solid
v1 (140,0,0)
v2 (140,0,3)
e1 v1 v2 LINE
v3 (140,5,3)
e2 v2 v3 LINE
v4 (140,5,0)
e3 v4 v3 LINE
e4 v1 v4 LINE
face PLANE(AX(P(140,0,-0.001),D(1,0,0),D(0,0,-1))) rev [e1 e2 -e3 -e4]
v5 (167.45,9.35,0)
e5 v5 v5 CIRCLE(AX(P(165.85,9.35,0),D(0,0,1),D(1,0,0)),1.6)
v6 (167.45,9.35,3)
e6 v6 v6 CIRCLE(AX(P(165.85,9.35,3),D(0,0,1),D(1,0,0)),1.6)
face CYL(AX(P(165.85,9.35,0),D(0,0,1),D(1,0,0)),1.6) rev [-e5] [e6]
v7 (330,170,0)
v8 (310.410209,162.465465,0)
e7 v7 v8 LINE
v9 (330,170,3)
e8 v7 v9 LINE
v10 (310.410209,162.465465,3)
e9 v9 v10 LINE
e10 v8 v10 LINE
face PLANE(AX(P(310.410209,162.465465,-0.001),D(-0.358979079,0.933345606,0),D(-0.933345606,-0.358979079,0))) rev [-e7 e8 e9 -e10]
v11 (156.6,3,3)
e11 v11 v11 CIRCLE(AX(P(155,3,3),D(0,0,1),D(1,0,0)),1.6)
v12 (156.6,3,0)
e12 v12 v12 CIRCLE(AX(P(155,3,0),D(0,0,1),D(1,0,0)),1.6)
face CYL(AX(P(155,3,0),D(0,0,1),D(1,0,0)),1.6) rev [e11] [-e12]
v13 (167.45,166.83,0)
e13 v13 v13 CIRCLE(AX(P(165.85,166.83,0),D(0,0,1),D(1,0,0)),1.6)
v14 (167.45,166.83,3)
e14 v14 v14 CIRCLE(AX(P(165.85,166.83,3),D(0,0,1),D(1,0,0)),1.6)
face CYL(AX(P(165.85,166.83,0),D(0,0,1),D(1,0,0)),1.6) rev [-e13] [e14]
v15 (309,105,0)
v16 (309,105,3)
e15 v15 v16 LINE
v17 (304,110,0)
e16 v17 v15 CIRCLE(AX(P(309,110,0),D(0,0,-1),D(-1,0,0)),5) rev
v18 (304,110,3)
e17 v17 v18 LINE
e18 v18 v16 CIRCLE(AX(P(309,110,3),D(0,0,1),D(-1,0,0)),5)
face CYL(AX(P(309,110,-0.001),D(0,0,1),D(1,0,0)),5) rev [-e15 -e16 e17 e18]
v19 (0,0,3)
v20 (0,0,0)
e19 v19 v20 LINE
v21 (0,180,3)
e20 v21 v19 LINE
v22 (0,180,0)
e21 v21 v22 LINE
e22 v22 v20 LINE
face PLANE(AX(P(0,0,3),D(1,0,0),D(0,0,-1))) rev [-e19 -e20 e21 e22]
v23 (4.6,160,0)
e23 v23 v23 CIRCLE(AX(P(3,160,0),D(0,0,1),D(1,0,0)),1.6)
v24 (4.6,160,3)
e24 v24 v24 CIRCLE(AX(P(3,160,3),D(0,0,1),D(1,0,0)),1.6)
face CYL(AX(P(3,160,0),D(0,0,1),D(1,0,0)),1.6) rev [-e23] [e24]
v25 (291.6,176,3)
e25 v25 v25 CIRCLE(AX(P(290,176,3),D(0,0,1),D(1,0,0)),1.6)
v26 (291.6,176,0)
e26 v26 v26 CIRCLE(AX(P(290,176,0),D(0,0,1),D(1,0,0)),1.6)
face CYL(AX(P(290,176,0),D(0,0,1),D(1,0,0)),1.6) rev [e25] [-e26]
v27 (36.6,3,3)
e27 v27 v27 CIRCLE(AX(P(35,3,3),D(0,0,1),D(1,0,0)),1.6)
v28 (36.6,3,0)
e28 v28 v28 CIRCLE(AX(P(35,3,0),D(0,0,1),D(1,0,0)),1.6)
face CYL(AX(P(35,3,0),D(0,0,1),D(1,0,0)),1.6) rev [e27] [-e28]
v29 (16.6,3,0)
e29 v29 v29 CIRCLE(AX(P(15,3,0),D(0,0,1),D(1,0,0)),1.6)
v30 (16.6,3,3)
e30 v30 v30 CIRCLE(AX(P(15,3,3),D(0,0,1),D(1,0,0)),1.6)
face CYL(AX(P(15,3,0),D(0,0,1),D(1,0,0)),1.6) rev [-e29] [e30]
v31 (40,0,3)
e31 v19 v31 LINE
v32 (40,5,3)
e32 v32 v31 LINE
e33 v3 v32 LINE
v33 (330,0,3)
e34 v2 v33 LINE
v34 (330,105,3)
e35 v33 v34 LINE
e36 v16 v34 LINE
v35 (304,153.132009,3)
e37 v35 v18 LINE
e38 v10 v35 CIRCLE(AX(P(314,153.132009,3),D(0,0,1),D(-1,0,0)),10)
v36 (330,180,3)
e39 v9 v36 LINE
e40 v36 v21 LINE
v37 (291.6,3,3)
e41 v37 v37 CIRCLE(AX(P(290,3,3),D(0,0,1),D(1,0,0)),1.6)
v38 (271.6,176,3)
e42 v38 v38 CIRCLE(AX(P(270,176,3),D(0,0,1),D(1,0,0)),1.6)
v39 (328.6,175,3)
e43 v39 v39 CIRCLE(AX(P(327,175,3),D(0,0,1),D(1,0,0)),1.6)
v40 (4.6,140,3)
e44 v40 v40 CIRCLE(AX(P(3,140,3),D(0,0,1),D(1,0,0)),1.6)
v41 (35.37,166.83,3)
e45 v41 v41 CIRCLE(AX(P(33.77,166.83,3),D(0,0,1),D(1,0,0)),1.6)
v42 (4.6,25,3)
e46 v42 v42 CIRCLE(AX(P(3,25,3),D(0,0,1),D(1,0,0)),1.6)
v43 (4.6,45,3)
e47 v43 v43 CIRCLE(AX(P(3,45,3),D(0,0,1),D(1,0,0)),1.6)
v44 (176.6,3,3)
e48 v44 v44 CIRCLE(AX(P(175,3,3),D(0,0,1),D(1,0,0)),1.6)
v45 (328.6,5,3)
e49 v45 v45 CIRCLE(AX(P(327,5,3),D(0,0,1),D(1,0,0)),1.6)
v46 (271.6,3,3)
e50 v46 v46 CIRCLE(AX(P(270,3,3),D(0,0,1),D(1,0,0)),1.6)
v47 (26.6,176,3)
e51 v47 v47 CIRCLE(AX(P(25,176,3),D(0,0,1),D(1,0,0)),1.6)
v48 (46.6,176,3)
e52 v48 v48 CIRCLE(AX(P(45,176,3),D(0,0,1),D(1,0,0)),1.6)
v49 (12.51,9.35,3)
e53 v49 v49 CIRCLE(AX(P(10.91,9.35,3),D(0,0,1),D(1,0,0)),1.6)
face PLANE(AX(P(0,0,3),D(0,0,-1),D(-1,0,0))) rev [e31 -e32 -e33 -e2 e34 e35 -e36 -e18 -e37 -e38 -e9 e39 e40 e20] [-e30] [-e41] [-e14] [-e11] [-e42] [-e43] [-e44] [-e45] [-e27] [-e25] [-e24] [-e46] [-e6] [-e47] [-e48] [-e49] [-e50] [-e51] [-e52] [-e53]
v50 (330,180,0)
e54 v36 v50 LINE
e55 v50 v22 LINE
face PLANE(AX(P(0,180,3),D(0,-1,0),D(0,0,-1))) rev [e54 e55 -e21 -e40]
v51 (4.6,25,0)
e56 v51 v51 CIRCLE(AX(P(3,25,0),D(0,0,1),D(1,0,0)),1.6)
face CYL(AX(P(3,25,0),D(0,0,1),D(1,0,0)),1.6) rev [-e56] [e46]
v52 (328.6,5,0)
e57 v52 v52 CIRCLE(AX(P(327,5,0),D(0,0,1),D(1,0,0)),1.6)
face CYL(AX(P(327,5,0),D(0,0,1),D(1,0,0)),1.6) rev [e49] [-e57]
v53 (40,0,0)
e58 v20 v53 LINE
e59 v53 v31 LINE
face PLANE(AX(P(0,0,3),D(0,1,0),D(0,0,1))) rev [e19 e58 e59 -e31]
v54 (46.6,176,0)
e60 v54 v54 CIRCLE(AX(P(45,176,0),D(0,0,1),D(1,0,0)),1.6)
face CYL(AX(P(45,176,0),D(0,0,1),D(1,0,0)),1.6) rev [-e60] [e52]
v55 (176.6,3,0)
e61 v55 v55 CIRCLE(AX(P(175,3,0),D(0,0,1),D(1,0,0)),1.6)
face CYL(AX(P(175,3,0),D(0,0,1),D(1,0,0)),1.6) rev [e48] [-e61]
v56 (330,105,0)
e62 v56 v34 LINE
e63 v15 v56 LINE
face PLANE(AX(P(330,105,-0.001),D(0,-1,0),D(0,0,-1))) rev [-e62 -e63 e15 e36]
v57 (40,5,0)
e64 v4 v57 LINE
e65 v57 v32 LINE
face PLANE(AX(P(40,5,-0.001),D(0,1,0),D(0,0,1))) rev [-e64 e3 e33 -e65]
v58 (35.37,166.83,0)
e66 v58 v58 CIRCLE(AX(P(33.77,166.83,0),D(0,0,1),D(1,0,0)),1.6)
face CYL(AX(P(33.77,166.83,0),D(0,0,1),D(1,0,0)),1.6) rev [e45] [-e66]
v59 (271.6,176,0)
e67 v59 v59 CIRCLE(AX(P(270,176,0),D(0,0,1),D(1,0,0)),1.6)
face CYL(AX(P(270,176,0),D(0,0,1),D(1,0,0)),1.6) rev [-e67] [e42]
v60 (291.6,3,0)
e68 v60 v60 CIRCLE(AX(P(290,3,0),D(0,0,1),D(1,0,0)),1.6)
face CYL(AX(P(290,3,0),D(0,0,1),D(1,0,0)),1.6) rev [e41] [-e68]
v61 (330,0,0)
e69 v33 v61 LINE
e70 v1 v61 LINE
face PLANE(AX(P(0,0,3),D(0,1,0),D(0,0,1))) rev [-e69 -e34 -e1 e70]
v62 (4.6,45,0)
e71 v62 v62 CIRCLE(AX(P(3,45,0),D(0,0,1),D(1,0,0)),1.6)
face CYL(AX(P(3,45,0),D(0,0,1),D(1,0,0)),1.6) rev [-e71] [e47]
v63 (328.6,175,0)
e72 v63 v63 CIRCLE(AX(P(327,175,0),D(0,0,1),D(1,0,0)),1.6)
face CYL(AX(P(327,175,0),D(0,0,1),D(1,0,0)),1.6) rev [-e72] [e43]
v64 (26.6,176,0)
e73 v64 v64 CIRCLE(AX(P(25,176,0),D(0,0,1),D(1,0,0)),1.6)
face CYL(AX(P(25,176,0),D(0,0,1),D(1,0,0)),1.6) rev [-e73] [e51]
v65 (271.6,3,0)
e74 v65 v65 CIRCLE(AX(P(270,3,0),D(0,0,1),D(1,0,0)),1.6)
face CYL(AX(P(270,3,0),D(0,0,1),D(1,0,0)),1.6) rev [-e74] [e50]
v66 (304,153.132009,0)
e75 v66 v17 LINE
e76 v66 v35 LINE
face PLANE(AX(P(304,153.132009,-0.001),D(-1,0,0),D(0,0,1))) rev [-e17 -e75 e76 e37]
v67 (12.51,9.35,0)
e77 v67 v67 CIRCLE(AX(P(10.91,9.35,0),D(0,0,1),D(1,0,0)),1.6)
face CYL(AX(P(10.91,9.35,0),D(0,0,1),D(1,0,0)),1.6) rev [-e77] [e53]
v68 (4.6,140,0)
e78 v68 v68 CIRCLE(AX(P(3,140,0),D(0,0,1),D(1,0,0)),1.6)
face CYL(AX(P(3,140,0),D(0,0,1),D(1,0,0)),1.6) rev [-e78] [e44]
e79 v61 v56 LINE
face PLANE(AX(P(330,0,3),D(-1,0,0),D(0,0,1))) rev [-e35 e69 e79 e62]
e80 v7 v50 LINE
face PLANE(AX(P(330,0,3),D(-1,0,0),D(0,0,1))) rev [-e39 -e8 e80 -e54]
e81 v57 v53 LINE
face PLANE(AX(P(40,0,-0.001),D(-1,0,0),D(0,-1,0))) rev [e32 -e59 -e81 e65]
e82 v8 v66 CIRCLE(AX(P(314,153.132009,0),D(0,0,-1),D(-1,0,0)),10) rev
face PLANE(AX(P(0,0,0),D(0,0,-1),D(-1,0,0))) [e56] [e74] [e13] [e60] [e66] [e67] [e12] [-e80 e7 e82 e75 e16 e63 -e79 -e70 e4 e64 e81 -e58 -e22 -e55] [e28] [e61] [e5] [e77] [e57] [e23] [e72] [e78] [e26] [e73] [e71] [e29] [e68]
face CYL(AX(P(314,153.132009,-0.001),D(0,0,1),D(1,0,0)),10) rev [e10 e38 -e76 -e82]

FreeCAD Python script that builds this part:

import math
import FreeCAD as App
import Part
import Sketcher

V = App.Vector
Q = App.Units.Quantity


def add_polygon(sketch, points):
    """Adds a closed chain of lines whose ends are joined by coincident constraints."""
    first, n = sketch.GeometryCount, len(points)
    for a, b in zip(points, points[1:] + points[:1]):
        sketch.addGeometry(Part.LineSegment(App.Vector(*a, 0), App.Vector(*b, 0)), False)
    for i in range(n):
        sketch.addConstraint(Sketcher.Constraint("Coincident", first + i, 2, first + (i + 1) % n, 1))

doc = App.newDocument("Part")
body = doc.addObject("PartDesign::Body", "Body")

# Sketch on XY plane
sketch1 = body.newObject("Sketcher::SketchObject", "Sketch")
sketch1.AttachmentSupport = (doc.getObject("XY_Plane"), [""])
sketch1.MapMode = "FlatFace"
add_polygon(sketch1, [(0, 180), (0, 0), (330, 0), (330, 180)])  # lines 0-3
sketch1.addConstraint(Sketcher.Constraint("Vertical", 0))
sketch1.addConstraint(Sketcher.Constraint("Horizontal", 1))
sketch1.addConstraint(Sketcher.Constraint("Vertical", 2))
sketch1.addConstraint(Sketcher.Constraint("Horizontal", 3))
sketch1.addConstraint(Sketcher.Constraint("Coincident", 0, 2, -1, 1))
sketch1.addConstraint(Sketcher.Constraint("DistanceX", 1, 1, 1, 2, Q("330 mm")))
sketch1.addConstraint(Sketcher.Constraint("DistanceY", 0, 2, 0, 1, Q("180 mm")))
pad1 = body.newObject("PartDesign::Pad", "Pad")
pad1.Profile = sketch1
pad1.Length = 3

# Sketch on XY plane
sketch2 = body.newObject("Sketcher::SketchObject", "Sketch001")
sketch2.AttachmentSupport = (doc.getObject("XY_Plane"), [""])
sketch2.MapMode = "FlatFace"
sketch2.AttachmentOffset = App.Placement(V(0, 0, 3), App.Rotation())
sketch2.addGeometry(Part.Circle(V(33.8, 166.8, 0), V(0, 0, 1), 1.6), False)
sketch2.addGeometry(Part.Circle(V(165.8, 166.8, 0), V(0, 0, 1), 1.6), False)
sketch2.addGeometry(Part.Circle(V(10.9, 9.3, 0), V(0, 0, 1), 1.6), False)
sketch2.addGeometry(Part.Circle(V(165.8, 9.3, 0), V(0, 0, 1), 1.6), False)
sketch2.addConstraint(Sketcher.Constraint("Equal", 0, 1))
sketch2.addConstraint(Sketcher.Constraint("Equal", 1, 2))
sketch2.addConstraint(Sketcher.Constraint("Equal", 2, 3))
sketch2.addConstraint(Sketcher.Constraint("Horizontal", 0, 3, 1, 3))
sketch2.addConstraint(Sketcher.Constraint("Horizontal", 2, 3, 3, 3))
sketch2.addConstraint(Sketcher.Constraint("Vertical", 1, 3, 3, 3))
sketch2.addConstraint(Sketcher.Constraint("Diameter", 0, Q("3.2 mm")))
sketch2.addConstraint(Sketcher.Constraint("DistanceX", -1, 1, 0, 3, Q("33.77 mm")))
sketch2.addConstraint(Sketcher.Constraint("DistanceY", -1, 1, 0, 3, Q("166.83 mm")))
sketch2.addConstraint(Sketcher.Constraint("DistanceX", -1, 1, 1, 3, Q("165.85 mm")))
sketch2.addConstraint(Sketcher.Constraint("DistanceX", -1, 1, 2, 3, Q("10.91 mm")))
sketch2.addConstraint(Sketcher.Constraint("DistanceY", -1, 1, 2, 3, Q("9.35 mm")))
pocket1 = body.newObject("PartDesign::Pocket", "Pocket")
pocket1.Profile = sketch2
pocket1.Type = "ThroughAll"

# Sketch on XY plane
sketch3 = body.newObject("Sketcher::SketchObject", "Sketch002")
sketch3.AttachmentSupport = (doc.getObject("XY_Plane"), [""])
sketch3.MapMode = "FlatFace"
sketch3.AttachmentOffset = App.Placement(V(0, 0, 3), App.Rotation())
sketch3.addGeometry(Part.Circle(V(3, 160, 0), V(0, 0, 1), 1.6), False)
sketch3.addGeometry(Part.Circle(V(3, 140, 0), V(0, 0, 1), 1.6), False)
sketch3.addGeometry(Part.Circle(V(3, 45, 0), V(0, 0, 1), 1.6), False)
sketch3.addGeometry(Part.Circle(V(3, 25, 0), V(0, 0, 1), 1.6), False)
sketch3.addGeometry(Part.Circle(V(15, 3, 0), V(0, 0, 1), 1.6), False)
sketch3.addGeometry(Part.Circle(V(35, 3, 0), V(0, 0, 1), 1.6), False)
sketch3.addGeometry(Part.Circle(V(155, 3, 0), V(0, 0, 1), 1.6), False)
sketch3.addGeometry(Part.Circle(V(175, 3, 0), V(0, 0, 1), 1.6), False)
sketch3.addGeometry(Part.Circle(V(25, 176, 0), V(0, 0, 1), 1.6), False)
sketch3.addGeometry(Part.Circle(V(45, 176, 0), V(0, 0, 1), 1.6), False)
sketch3.addGeometry(Part.Circle(V(270, 176, 0), V(0, 0, 1), 1.6), False)
sketch3.addGeometry(Part.Circle(V(290, 176, 0), V(0, 0, 1), 1.6), False)
sketch3.addGeometry(Part.Circle(V(270, 3, 0), V(0, 0, 1), 1.6), False)
sketch3.addGeometry(Part.Circle(V(290, 3, 0), V(0, 0, 1), 1.6), False)
sketch3.addGeometry(Part.Circle(V(327, 5, 0), V(0, 0, 1), 1.6), False)
sketch3.addGeometry(Part.Circle(V(327, 175, 0), V(0, 0, 1), 1.6), False)
sketch3.addConstraint(Sketcher.Constraint("Equal", 0, 1))
sketch3.addConstraint(Sketcher.Constraint("Equal", 1, 2))
sketch3.addConstraint(Sketcher.Constraint("Equal", 2, 3))
sketch3.addConstraint(Sketcher.Constraint("Equal", 3, 4))
sketch3.addConstraint(Sketcher.Constraint("Equal", 4, 5))
sketch3.addConstraint(Sketcher.Constraint("Equal", 5, 6))
sketch3.addConstraint(Sketcher.Constraint("Equal", 6, 7))
sketch3.addConstraint(Sketcher.Constraint("Equal", 7, 8))
sketch3.addConstraint(Sketcher.Constraint("Equal", 8, 9))
sketch3.addConstraint(Sketcher.Constraint("Equal", 9, 10))
sketch3.addConstraint(Sketcher.Constraint("Equal", 10, 11))
sketch3.addConstraint(Sketcher.Constraint("Equal", 11, 12))
sketch3.addConstraint(Sketcher.Constraint("Equal", 12, 13))
sketch3.addConstraint(Sketcher.Constraint("Equal", 13, 14))
sketch3.addConstraint(Sketcher.Constraint("Equal", 14, 15))
sketch3.addConstraint(Sketcher.Constraint("Horizontal", 4, 3, 5, 3))
sketch3.addConstraint(Sketcher.Constraint("Horizontal", 5, 3, 6, 3))
sketch3.addConstraint(Sketcher.Constraint("Horizontal", 6, 3, 7, 3))
sketch3.addConstraint(Sketcher.Constraint("Horizontal", 8, 3, 9, 3))
sketch3.addConstraint(Sketcher.Constraint("Horizontal", 9, 3, 10, 3))
sketch3.addConstraint(Sketcher.Constraint("Horizontal", 10, 3, 11, 3))
sketch3.addConstraint(Sketcher.Constraint("Horizontal", 7, 3, 12, 3))
sketch3.addConstraint(Sketcher.Constraint("Horizontal", 12, 3, 13, 3))
sketch3.addConstraint(Sketcher.Constraint("Vertical", 0, 3, 1, 3))
sketch3.addConstraint(Sketcher.Constraint("Vertical", 1, 3, 2, 3))
sketch3.addConstraint(Sketcher.Constraint("Vertical", 2, 3, 3, 3))
sketch3.addConstraint(Sketcher.Constraint("Vertical", 10, 3, 12, 3))
sketch3.addConstraint(Sketcher.Constraint("Vertical", 11, 3, 13, 3))
sketch3.addConstraint(Sketcher.Constraint("Vertical", 14, 3, 15, 3))
sketch3.addConstraint(Sketcher.Constraint("Diameter", 0, Q("3.2 mm")))
sketch3.addConstraint(Sketcher.Constraint("DistanceX", -1, 1, 0, 3, Q("3 mm")))
sketch3.addConstraint(Sketcher.Constraint("DistanceY", -1, 1, 0, 3, Q("160 mm")))
sketch3.addConstraint(Sketcher.Constraint("DistanceY", -1, 1, 1, 3, Q("140 mm")))
sketch3.addConstraint(Sketcher.Constraint("DistanceY", -1, 1, 2, 3, Q("45 mm")))
sketch3.addConstraint(Sketcher.Constraint("DistanceY", -1, 1, 3, 3, Q("25 mm")))
sketch3.addConstraint(Sketcher.Constraint("DistanceX", -1, 1, 4, 3, Q("15 mm")))
sketch3.addConstraint(Sketcher.Constraint("DistanceY", -1, 1, 4, 3, Q("3 mm")))
sketch3.addConstraint(Sketcher.Constraint("DistanceX", -1, 1, 5, 3, Q("35 mm")))
sketch3.addConstraint(Sketcher.Constraint("DistanceX", -1, 1, 6, 3, Q("155 mm")))
sketch3.addConstraint(Sketcher.Constraint("DistanceX", -1, 1, 7, 3, Q("175 mm")))
sketch3.addConstraint(Sketcher.Constraint("DistanceX", -1, 1, 8, 3, Q("25 mm")))
sketch3.addConstraint(Sketcher.Constraint("DistanceY", -1, 1, 8, 3, Q("176 mm")))
sketch3.addConstraint(Sketcher.Constraint("DistanceX", -1, 1, 9, 3, Q("45 mm")))
sketch3.addConstraint(Sketcher.Constraint("DistanceX", -1, 1, 10, 3, Q("270 mm")))
sketch3.addConstraint(Sketcher.Constraint("DistanceX", -1, 1, 11, 3, Q("290 mm")))
sketch3.addConstraint(Sketcher.Constraint("DistanceX", -1, 1, 14, 3, Q("327 mm")))
sketch3.addConstraint(Sketcher.Constraint("DistanceY", -1, 1, 14, 3, Q("5 mm")))
sketch3.addConstraint(Sketcher.Constraint("DistanceY", -1, 1, 15, 3, Q("175 mm")))
pocket2 = body.newObject("PartDesign::Pocket", "Pocket001")
pocket2.Profile = sketch3
pocket2.Type = "ThroughAll"

# Sketch on XY plane
sketch4 = body.newObject("Sketcher::SketchObject", "Sketch003")
sketch4.AttachmentSupport = (doc.getObject("XY_Plane"), [""])
sketch4.MapMode = "FlatFace"
sketch4.AttachmentOffset = App.Placement(V(0, 0, 3), App.Rotation())
add_polygon(sketch4, [(40, 5), (40, 0), (140, 0), (140, 5)])  # lines 0-3
sketch4.addConstraint(Sketcher.Constraint("Vertical", 0))
sketch4.addConstraint(Sketcher.Constraint("Horizontal", 1))
sketch4.addConstraint(Sketcher.Constraint("Vertical", 2))
sketch4.addConstraint(Sketcher.Constraint("Horizontal", 3))
sketch4.addConstraint(Sketcher.Constraint("PointOnObject", 0, 2, -1))
sketch4.addConstraint(Sketcher.Constraint("DistanceX", 1, 1, 1, 2, Q("100 mm")))
sketch4.addConstraint(Sketcher.Constraint("DistanceY", 0, 2, 0, 1, Q("5 mm")))
sketch4.addConstraint(Sketcher.Constraint("DistanceX", -1, 1, 0, 2, Q("40 mm")))
pocket3 = body.newObject("PartDesign::Pocket", "Pocket002")
pocket3.Profile = sketch4
pocket3.Type = "UpToFirst"

# Sketch on XY plane
sketch5 = body.newObject("Sketcher::SketchObject", "Sketch004")
sketch5.AttachmentSupport = (doc.getObject("XY_Plane"), [""])
sketch5.MapMode = "FlatFace"
sketch5.AttachmentOffset = App.Placement(V(0, 0, 3), App.Rotation())
sketch5.addGeometry(Part.LineSegment(V(330, 105, 0), V(330, 170, 0)), False)
sketch5.addGeometry(Part.LineSegment(V(330, 170, 0), V(310, 162, 0)), False)
sketch5.addGeometry(Part.ArcOfCircle(Part.Circle(V(314, 153, 0), V(0, 0, 1), 10), math.radians(111), math.radians(180)), False)
sketch5.addGeometry(Part.LineSegment(V(304, 153, 0), V(304, 110, 0)), False)
sketch5.addGeometry(Part.ArcOfCircle(Part.Circle(V(309, 110, 0), V(0, 0, 1), 5), math.radians(180), math.radians(270)), False)
sketch5.addGeometry(Part.LineSegment(V(309, 105, 0), V(330, 105, 0)), False)
sketch5.addConstraint(Sketcher.Constraint("Coincident", 0, 2, 1, 1))
sketch5.addConstraint(Sketcher.Constraint("Tangent", 1, 2, 2, 1))
sketch5.addConstraint(Sketcher.Constraint("Tangent", 2, 2, 3, 1))
sketch5.addConstraint(Sketcher.Constraint("Tangent", 3, 2, 4, 1))
sketch5.addConstraint(Sketcher.Constraint("Tangent", 4, 2, 5, 1))
sketch5.addConstraint(Sketcher.Constraint("Coincident", 5, 2, 0, 1))
sketch5.addConstraint(Sketcher.Constraint("Vertical", 0))
sketch5.addConstraint(Sketcher.Constraint("Vertical", 3))
sketch5.addConstraint(Sketcher.Constraint("Horizontal", 5))
sketch5.addConstraint(Sketcher.Constraint("Radius", 2, Q("10 mm")))
sketch5.addConstraint(Sketcher.Constraint("Radius", 4, Q("5 mm")))
sketch5.addConstraint(Sketcher.Constraint("DistanceX", 5, 1, 5, 2, Q("21 mm")))
sketch5.addConstraint(Sketcher.Constraint("DistanceY", 0, 1, 0, 2, Q("65 mm")))
sketch5.addConstraint(Sketcher.Constraint("DistanceX", -1, 1, 2, 3, Q("314 mm")))
sketch5.addConstraint(Sketcher.Constraint("DistanceY", -1, 1, 4, 3, Q("110 mm")))
sketch5.addConstraint(Sketcher.Constraint("DistanceY", 3, 2, 3, 1, Q("43.132009 mm")))
pocket4 = body.newObject("PartDesign::Pocket", "Pocket003")
pocket4.Profile = sketch5
pocket4.Type = "UpToFirst"

doc.recompute()
